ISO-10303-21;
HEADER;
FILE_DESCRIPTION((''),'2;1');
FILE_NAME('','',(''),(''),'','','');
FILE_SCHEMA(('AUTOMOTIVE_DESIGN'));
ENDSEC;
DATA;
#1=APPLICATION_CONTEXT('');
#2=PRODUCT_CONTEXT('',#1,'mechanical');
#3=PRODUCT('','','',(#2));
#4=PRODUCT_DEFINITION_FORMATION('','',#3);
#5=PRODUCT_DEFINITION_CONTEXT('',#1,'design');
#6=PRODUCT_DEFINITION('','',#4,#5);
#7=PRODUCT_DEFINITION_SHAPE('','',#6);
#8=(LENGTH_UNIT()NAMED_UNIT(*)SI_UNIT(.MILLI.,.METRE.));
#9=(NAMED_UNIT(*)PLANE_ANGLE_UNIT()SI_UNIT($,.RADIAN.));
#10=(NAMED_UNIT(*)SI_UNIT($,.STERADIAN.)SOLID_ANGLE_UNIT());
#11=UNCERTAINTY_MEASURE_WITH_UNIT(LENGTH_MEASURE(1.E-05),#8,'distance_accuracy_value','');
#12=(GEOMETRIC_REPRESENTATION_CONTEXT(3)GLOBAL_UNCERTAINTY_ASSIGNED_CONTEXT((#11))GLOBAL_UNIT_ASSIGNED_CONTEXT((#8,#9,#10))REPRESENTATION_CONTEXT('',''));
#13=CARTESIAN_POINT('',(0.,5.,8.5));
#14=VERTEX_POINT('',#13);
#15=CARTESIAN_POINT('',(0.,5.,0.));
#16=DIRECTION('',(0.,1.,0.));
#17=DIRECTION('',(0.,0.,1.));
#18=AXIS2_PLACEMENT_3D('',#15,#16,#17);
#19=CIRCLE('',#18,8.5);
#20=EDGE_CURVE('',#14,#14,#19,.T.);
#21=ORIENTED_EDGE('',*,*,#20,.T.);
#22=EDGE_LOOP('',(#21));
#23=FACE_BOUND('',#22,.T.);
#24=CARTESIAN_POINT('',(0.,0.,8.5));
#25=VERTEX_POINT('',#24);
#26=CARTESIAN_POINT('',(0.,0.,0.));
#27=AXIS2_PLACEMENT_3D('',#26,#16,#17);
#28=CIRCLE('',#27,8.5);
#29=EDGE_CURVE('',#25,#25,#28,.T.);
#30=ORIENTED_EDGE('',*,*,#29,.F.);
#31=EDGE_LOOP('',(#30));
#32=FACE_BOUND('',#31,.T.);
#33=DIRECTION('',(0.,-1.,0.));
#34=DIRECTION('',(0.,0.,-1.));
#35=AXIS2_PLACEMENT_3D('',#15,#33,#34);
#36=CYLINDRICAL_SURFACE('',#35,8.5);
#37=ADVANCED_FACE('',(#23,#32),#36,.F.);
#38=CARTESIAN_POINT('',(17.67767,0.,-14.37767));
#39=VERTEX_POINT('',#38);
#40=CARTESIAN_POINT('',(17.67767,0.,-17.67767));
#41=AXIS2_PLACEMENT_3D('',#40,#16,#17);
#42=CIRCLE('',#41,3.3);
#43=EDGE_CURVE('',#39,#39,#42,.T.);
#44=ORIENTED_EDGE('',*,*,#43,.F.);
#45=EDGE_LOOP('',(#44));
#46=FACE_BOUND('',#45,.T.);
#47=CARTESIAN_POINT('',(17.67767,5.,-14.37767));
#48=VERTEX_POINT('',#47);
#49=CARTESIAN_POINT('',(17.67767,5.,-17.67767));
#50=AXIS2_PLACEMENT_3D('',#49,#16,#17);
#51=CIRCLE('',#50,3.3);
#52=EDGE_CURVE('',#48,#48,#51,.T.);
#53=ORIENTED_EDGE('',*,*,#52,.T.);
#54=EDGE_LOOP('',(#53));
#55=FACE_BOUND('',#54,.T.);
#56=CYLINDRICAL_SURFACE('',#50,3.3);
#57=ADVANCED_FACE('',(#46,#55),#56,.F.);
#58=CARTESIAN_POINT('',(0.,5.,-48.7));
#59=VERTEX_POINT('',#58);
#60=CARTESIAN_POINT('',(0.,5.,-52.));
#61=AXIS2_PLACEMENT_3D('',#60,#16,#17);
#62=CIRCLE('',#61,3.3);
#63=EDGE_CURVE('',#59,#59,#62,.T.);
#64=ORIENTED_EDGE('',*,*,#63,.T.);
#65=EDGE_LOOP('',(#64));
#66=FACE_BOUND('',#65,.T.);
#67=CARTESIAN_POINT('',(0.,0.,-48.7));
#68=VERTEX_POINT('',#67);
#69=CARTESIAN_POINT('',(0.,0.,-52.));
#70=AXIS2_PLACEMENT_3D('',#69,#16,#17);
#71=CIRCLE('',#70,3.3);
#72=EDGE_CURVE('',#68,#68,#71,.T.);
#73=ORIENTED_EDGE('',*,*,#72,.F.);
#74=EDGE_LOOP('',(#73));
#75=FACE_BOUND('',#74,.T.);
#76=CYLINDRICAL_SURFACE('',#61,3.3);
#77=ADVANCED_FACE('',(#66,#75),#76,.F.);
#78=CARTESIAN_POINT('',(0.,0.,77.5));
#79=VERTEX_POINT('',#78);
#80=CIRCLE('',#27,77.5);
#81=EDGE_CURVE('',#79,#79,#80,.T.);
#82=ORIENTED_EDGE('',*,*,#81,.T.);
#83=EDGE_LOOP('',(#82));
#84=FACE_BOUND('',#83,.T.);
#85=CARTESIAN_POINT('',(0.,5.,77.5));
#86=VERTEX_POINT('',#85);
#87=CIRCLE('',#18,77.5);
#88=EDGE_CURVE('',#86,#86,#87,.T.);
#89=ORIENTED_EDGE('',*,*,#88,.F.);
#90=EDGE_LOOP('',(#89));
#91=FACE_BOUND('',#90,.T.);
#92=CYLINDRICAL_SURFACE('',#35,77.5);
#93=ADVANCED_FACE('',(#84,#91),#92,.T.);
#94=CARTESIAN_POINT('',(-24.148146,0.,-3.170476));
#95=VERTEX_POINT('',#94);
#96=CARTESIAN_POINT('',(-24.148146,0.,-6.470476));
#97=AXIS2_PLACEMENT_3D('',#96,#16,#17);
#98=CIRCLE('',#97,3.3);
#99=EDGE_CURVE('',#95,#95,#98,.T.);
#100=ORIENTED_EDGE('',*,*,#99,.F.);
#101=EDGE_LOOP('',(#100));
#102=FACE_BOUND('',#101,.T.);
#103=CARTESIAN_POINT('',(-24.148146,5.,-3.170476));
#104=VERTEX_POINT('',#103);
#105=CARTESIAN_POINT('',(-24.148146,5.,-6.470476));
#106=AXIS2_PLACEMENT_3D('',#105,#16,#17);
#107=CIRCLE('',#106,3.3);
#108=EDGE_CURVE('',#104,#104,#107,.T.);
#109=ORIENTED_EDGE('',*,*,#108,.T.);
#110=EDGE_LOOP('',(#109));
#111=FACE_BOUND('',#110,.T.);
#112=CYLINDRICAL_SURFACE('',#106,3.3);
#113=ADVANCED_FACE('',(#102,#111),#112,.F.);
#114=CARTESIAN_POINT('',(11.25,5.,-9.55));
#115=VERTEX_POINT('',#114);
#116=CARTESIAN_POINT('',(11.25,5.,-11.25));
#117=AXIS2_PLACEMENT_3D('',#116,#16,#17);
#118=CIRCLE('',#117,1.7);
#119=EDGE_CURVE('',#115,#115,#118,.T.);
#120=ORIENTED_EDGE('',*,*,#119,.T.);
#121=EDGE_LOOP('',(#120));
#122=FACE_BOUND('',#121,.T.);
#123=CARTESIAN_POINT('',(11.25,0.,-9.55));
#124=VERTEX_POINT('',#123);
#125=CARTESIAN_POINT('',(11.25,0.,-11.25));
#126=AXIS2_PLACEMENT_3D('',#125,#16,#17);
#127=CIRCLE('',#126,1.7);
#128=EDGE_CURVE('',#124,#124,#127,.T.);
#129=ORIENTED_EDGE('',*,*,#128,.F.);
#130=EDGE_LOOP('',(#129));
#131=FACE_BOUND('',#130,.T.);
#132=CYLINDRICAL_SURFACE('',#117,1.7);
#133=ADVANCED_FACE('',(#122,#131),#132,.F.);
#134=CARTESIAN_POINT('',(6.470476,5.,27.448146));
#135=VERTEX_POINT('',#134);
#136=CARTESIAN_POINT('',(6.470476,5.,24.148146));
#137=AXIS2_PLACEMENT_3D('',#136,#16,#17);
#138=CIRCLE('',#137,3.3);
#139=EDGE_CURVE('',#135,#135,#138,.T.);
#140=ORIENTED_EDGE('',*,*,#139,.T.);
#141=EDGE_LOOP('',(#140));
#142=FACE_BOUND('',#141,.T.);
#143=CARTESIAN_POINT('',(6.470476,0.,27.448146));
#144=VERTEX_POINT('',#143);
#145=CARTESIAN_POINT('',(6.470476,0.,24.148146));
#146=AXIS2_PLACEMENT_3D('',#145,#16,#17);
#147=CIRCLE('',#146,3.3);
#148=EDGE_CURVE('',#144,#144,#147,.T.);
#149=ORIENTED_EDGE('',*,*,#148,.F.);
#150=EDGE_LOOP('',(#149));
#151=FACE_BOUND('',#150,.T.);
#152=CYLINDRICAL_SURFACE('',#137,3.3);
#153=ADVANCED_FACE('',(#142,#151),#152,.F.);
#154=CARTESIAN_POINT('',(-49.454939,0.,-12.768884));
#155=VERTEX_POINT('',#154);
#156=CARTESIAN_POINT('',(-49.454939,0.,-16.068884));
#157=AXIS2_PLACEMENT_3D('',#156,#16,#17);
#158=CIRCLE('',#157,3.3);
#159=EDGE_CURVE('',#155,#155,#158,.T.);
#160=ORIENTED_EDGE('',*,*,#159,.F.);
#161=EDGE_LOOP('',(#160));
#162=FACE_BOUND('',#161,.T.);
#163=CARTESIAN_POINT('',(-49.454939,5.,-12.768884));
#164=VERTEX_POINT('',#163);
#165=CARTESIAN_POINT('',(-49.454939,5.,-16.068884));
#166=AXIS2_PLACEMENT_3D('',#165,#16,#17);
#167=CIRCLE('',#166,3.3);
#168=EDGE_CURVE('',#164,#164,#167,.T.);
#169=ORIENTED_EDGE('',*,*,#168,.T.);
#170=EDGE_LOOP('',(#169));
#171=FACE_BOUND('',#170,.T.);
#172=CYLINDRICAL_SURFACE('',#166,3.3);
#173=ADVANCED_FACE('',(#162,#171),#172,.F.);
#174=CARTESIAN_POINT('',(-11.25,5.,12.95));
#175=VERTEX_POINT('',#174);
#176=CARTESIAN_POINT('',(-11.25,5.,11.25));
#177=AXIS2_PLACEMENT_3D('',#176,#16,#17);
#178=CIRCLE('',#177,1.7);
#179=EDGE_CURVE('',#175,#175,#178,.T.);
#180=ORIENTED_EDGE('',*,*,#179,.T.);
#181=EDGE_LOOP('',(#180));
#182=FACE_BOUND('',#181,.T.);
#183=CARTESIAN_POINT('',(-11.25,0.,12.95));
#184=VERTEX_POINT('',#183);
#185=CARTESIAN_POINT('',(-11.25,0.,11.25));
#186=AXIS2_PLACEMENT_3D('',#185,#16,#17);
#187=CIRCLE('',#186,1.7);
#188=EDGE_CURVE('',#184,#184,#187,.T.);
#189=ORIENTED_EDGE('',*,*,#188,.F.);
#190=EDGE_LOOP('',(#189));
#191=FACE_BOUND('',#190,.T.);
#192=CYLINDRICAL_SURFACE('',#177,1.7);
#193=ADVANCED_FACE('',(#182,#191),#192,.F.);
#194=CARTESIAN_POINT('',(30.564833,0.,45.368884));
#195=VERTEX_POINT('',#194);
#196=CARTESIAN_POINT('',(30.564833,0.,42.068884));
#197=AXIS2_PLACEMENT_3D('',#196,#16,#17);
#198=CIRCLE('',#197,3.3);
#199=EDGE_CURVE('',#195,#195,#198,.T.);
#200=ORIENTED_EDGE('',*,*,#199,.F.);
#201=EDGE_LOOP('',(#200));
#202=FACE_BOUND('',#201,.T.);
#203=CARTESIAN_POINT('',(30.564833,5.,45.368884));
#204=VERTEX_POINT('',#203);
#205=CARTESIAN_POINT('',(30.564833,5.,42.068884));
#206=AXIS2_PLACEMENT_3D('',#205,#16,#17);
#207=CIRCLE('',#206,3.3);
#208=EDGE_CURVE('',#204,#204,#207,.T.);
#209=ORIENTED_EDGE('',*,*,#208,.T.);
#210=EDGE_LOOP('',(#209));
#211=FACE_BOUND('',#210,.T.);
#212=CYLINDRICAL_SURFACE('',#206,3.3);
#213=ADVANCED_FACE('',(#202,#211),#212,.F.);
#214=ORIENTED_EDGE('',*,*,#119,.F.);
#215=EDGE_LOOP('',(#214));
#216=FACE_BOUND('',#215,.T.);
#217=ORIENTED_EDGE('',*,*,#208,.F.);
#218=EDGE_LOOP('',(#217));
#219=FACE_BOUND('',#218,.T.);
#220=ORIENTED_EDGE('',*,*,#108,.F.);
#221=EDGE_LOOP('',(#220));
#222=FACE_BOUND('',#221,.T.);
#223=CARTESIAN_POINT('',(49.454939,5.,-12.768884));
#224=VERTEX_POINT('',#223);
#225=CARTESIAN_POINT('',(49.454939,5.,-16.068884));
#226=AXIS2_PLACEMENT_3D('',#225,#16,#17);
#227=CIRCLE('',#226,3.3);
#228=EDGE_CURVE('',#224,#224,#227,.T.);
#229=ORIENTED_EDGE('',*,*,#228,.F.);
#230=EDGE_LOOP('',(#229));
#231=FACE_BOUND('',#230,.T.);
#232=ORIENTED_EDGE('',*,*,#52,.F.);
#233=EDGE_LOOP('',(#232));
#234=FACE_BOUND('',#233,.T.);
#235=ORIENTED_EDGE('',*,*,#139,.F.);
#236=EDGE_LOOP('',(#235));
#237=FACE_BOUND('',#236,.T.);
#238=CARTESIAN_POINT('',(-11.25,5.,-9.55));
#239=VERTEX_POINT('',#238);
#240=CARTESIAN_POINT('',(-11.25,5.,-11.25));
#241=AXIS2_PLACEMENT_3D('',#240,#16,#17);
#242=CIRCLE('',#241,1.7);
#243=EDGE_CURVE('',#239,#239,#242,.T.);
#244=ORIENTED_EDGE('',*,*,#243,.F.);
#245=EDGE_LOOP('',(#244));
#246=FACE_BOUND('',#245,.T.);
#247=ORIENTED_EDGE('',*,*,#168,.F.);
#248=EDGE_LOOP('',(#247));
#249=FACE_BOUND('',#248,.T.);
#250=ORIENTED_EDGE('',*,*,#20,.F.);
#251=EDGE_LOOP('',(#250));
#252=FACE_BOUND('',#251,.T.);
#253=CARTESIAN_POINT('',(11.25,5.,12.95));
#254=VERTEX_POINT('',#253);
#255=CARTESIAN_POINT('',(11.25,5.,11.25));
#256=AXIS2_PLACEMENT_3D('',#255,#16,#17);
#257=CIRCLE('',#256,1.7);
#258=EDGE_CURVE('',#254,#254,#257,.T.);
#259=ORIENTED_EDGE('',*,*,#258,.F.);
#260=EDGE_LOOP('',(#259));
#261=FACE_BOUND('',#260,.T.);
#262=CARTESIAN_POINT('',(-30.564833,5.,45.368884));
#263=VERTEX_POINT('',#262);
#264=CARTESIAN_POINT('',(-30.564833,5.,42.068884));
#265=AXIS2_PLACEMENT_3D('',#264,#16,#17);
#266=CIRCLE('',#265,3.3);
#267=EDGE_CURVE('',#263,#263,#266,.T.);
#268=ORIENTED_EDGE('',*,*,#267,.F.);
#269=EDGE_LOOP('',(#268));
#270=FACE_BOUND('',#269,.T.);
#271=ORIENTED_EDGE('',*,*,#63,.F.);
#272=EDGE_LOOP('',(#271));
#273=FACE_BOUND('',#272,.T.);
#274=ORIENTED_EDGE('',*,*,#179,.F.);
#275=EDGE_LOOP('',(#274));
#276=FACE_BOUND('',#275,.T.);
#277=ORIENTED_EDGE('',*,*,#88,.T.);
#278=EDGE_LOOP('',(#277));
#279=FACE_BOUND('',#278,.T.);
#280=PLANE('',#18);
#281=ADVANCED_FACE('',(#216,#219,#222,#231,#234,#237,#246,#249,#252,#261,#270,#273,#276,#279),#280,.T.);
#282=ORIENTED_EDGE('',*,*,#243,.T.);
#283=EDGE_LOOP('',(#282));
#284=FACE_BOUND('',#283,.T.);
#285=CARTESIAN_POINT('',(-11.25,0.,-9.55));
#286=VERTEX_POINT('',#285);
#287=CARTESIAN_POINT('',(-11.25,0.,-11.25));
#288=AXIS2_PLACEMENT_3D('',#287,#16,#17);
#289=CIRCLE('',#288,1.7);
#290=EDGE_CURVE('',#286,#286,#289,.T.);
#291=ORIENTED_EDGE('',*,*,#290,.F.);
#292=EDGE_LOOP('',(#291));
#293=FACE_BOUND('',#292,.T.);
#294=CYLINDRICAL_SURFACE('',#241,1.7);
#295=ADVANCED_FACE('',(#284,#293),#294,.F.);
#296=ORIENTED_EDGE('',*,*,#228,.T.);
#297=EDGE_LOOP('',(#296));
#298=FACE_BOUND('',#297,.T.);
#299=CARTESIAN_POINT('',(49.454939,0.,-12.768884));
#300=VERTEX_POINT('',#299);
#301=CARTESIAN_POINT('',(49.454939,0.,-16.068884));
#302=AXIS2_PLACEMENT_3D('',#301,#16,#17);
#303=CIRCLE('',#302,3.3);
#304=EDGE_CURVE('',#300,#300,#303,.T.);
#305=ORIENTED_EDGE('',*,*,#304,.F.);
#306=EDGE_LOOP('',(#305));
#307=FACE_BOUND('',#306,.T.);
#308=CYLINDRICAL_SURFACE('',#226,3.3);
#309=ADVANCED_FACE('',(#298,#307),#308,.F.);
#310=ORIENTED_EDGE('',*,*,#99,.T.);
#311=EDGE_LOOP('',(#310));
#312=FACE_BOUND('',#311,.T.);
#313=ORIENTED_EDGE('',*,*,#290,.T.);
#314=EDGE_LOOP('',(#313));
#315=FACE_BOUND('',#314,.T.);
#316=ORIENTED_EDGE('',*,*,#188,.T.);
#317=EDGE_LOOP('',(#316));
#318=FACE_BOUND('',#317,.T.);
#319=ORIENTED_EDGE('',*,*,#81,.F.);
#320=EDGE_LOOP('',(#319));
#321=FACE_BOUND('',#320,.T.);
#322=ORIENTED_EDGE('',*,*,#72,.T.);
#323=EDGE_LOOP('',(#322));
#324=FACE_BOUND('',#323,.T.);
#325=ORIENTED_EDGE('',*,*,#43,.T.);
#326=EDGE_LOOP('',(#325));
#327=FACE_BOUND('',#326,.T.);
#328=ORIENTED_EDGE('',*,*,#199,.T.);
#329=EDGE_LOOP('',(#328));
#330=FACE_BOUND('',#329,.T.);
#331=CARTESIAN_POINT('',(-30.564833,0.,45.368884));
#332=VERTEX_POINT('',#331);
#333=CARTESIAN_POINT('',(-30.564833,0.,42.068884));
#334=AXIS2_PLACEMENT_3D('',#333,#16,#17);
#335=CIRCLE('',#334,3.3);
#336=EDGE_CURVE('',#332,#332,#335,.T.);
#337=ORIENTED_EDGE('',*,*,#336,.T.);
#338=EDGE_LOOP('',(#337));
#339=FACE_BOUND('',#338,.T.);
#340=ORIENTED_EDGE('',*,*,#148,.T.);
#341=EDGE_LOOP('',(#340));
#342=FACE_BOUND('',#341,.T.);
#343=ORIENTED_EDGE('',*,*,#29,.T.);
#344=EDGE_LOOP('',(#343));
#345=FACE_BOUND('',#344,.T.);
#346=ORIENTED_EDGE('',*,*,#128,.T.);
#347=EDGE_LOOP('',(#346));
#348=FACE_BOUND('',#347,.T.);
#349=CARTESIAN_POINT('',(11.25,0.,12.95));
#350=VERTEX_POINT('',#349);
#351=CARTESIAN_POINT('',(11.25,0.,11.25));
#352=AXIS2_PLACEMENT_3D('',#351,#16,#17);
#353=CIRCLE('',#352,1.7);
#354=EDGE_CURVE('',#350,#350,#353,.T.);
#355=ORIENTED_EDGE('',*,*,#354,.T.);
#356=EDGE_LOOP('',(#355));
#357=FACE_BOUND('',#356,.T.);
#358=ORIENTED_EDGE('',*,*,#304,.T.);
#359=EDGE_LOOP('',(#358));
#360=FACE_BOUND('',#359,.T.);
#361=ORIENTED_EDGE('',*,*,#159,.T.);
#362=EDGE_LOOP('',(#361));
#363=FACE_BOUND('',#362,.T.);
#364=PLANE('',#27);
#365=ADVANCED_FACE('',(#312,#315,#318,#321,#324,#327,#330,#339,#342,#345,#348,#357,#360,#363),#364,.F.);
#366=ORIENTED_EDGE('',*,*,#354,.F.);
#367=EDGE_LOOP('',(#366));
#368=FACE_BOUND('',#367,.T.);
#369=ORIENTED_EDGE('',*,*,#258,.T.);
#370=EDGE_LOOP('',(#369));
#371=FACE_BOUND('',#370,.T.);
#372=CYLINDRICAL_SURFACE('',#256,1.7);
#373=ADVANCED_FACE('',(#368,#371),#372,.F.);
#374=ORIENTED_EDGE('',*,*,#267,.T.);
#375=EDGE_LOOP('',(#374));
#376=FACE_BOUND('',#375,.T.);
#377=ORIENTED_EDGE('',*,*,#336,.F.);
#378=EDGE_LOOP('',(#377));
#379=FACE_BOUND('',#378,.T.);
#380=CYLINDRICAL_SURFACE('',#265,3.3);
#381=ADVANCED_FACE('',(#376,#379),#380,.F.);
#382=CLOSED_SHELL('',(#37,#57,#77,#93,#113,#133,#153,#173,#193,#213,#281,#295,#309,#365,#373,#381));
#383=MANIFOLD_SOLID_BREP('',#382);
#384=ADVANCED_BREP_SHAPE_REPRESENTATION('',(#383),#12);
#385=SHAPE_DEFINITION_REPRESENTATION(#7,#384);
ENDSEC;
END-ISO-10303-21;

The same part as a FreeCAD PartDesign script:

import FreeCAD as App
import Part
import Sketcher
Q = App.Units.Quantity

doc = App.newDocument("Part")
params = doc.addObject("Spreadsheet::Sheet", "Params")
for row, (alias, value) in enumerate([
    ("sketch1_diameter", "155 mm"),
    ("sketch1_diameter2", "17 mm"),
    ("pad1_length", "5 mm"),
    ("sketch2_diameter", "6.6 mm"),
    ("hole_diameter", "6.6 mm"),
    ("sketch3_diameter", "3.4 mm"),
    ("hole2_diameter", "3.4 mm"),
    ("sketch4_diameter", "6.6 mm"),
    ("hole3_diameter", "6.6 mm"),
], start=1):
    params.set(f"A{row}", alias)
    params.set(f"B{row}", "=" + value)
    params.setAlias(f"B{row}", alias)

body = doc.addObject("PartDesign::Body", "Body")

sketch1 = doc.addObject("Sketcher::SketchObject", "Sketch")
body.addObject(sketch1)
sketch1.AttachmentSupport = (doc.XZ_Plane, [""])
sketch1.MapMode = "FlatFace"
sketch1.addGeometry([
    Part.Circle(App.Vector(0, 0, 0), App.Vector(0, 0, 1), 78),
    Part.Circle(App.Vector(0, 0, 0), App.Vector(0, 0, 1), 8),
], False)
sketch1.addConstraint([
    Sketcher.Constraint("Coincident", 0, 3, -1, 1),
    Sketcher.Constraint("Coincident", 1, 3, -1, 1),
    Sketcher.Constraint("Diameter", 0, Q("155 mm")),
    Sketcher.Constraint("Diameter", 1, Q("17 mm")),
])
sketch1.setExpression("Constraints[2]", "Params.sketch1_diameter")
sketch1.setExpression("Constraints[3]", "Params.sketch1_diameter2")
pad1 = doc.addObject("PartDesign::Pad", "Pad")
body.addObject(pad1)
pad1.Profile = sketch1
pad1.setExpression("Length", "Params.pad1_length")
pad1.Reversed = True

sketch2 = doc.addObject("Sketcher::SketchObject", "Sketch001")
body.addObject(sketch2)
sketch2.AttachmentSupport = (doc.XZ_Plane, [""])
sketch2.MapMode = "FlatFace"
sketch2.AttachmentOffset = App.Placement(App.Vector(0, 0, -5), App.Rotation())
sketch2.addGeometry([
    Part.Circle(App.Vector(0, -52, 0), App.Vector(0, 0, 1), 3.3),
    Part.Circle(App.Vector(49.5, -16.1, 0), App.Vector(0, 0, 1), 3.3),
    Part.Circle(App.Vector(30.6, 42.1, 0), App.Vector(0, 0, 1), 3.3),
    Part.Circle(App.Vector(-30.6, 42.1, 0), App.Vector(0, 0, 1), 3.3),
    Part.Circle(App.Vector(-49.5, -16.1, 0), App.Vector(0, 0, 1), 3.3),
    Part.Circle(App.Vector(0, 0, 0), App.Vector(0, 0, 1), 3.3),
], False)
sketch2.addConstraint([
    Sketcher.Constraint("Coincident", 5, 3, -1, 1),
    Sketcher.Constraint("Equal", 0, 1),
    Sketcher.Constraint("Equal", 1, 2),
    Sketcher.Constraint("Equal", 2, 3),
    Sketcher.Constraint("Equal", 3, 4),
    Sketcher.Constraint("Equal", 4, 5),
    Sketcher.Constraint("Symmetric", 2, 3, 3, 3, -2),
    Sketcher.Constraint("Symmetric", 1, 3, 4, 3, -2),
    Sketcher.Constraint("PointOnObject", 0, 3, -2),
    Sketcher.Constraint("Diameter", 0, Q("6.6 mm")),
    Sketcher.Constraint("DistanceY", 0, 3, -1, 1, Q("52 mm")),
    Sketcher.Constraint("DistanceX", -1, 1, 1, 3, Q("49.454939 mm")),
    Sketcher.Constraint("DistanceX", 3, 3, 1, 3, Q("80.019772 mm")),
    Sketcher.Constraint("DistanceY", 1, 3, -1, 1, Q("16.068884 mm")),
    Sketcher.Constraint("DistanceY", -1, 1, 2, 3, Q("42.068884 mm")),
])
sketch2.setExpression("Constraints[9]", "Params.sketch2_diameter")
doc.recompute()
hole = doc.addObject("PartDesign::Hole", "Hole")
body.addObject(hole)
hole.Profile = sketch2
hole.ThreadType = "None"
hole.setExpression("Diameter", "Params.hole_diameter")
hole.DepthType = "ThroughAll"
hole.Reversed = True

sketch3 = doc.addObject("Sketcher::SketchObject", "Sketch002")
body.addObject(sketch3)
sketch3.AttachmentSupport = (doc.XZ_Plane, [""])
sketch3.MapMode = "FlatFace"
sketch3.AttachmentOffset = App.Placement(App.Vector(0, 0, -5), App.Rotation())
sketch3.addGeometry([
    Part.Circle(App.Vector(0, 0, 0), App.Vector(0, 0, 1), 1.7),
    Part.Circle(App.Vector(-11.2, -11.2, 0), App.Vector(0, 0, 1), 1.7),
    Part.Circle(App.Vector(11.2, 11.2, 0), App.Vector(0, 0, 1), 1.7),
    Part.Circle(App.Vector(11.2, -11.2, 0), App.Vector(0, 0, 1), 1.7),
    Part.Circle(App.Vector(-11.2, 11.2, 0), App.Vector(0, 0, 1), 1.7),
], False)
sketch3.addConstraint([
    Sketcher.Constraint("Coincident", 0, 3, -1, 1),
    Sketcher.Constraint("Equal", 0, 1),
    Sketcher.Constraint("Equal", 1, 2),
    Sketcher.Constraint("Equal", 2, 3),
    Sketcher.Constraint("Equal", 3, 4),
    Sketcher.Constraint("Symmetric", 1, 3, 2, 3, -1, 1),
    Sketcher.Constraint("Symmetric", 3, 3, 4, 3, -1, 1),
    Sketcher.Constraint("Symmetric", 1, 3, 3, 3, -2),
    Sketcher.Constraint("Diameter", 0, Q("3.4 mm")),
    Sketcher.Constraint("DistanceX", 1, 3, 2, 3, Q("22.5 mm")),
    Sketcher.Constraint("DistanceY", 1, 3, 2, 3, Q("22.5 mm")),
])
sketch3.setExpression("Constraints[8]", "Params.sketch3_diameter")
doc.recompute()
hole2 = doc.addObject("PartDesign::Hole", "Hole001")
body.addObject(hole2)
hole2.Profile = sketch3
hole2.ThreadType = "None"
hole2.setExpression("Diameter", "Params.hole2_diameter")
hole2.DepthType = "ThroughAll"
hole2.Reversed = True

sketch4 = doc.addObject("Sketcher::SketchObject", "Sketch003")
body.addObject(sketch4)
sketch4.AttachmentSupport = (doc.XZ_Plane, [""])
sketch4.MapMode = "FlatFace"
sketch4.AttachmentOffset = App.Placement(App.Vector(0, 0, -5), App.Rotation())
sketch4.addGeometry([
    Part.Circle(App.Vector(17.7, -17.7, 0), App.Vector(0, 0, 1), 3.3),
    Part.Circle(App.Vector(6.5, 24.1, 0), App.Vector(0, 0, 1), 3.3),
    Part.Circle(App.Vector(-24.1, -6.5, 0), App.Vector(0, 0, 1), 3.3),
    Part.Circle(App.Vector(0, 0, 0), App.Vector(0, 0, 1), 3.3),
], False)
sketch4.addConstraint([
    Sketcher.Constraint("Coincident", 3, 3, -1, 1),
    Sketcher.Constraint("Equal", 0, 1),
    Sketcher.Constraint("Equal", 1, 2),
    Sketcher.Constraint("Equal", 2, 3),
    Sketcher.Constraint("Diameter", 0, Q("6.6 mm")),
    Sketcher.Constraint("DistanceX", -1, 1, 0, 3, Q("17.67767 mm")),
    Sketcher.Constraint("DistanceY", 0, 3, -1, 1, Q("17.67767 mm")),
    Sketcher.Constraint("DistanceX", 2, 3, 1, 3, Q("30.618622 mm")),
    Sketcher.Constraint("DistanceY", 2, 3, 1, 3, Q("30.618622 mm")),
    Sketcher.Constraint("DistanceX", -1, 1, 1, 3, Q("6.470476 mm")),
    Sketcher.Constraint("DistanceY", -1, 1, 1, 3, Q("24.148146 mm")),
])
sketch4.setExpression("Constraints[4]", "Params.sketch4_diameter")
doc.recompute()
hole3 = doc.addObject("PartDesign::Hole", "Hole002")
body.addObject(hole3)
hole3.Profile = sketch4
hole3.ThreadType = "None"
hole3.setExpression("Diameter", "Params.hole3_diameter")
hole3.DepthType = "ThroughAll"
hole3.Reversed = True

doc.recompute()
